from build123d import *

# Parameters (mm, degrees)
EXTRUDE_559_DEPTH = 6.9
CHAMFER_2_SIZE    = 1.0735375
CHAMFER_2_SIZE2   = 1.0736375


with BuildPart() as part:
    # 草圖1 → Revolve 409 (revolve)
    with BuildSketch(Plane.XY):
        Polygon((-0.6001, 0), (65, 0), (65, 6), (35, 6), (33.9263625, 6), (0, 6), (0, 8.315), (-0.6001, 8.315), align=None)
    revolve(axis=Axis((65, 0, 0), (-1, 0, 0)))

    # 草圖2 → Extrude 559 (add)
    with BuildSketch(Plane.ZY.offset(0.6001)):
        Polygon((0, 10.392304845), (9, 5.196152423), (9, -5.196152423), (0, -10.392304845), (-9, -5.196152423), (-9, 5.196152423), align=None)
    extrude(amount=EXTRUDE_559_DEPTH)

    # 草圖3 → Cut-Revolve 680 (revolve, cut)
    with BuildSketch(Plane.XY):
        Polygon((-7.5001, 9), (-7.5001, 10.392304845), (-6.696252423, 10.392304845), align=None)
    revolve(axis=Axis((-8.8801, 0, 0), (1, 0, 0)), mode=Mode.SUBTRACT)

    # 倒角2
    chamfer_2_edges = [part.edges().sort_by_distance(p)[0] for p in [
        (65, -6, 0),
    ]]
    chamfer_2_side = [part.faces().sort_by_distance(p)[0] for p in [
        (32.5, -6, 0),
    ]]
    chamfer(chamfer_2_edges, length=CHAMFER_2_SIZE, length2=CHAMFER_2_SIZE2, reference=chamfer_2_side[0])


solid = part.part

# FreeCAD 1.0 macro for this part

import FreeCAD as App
import Part
import Sketcher
Q = App.Units.Quantity


def edges_at(feature, points):
    """Names of the edges that pass closest to the given points."""
    edges = feature.Shape.Edges
    near = lambda p: min(range(len(edges)), key=lambda i: edges[i].distToShape(Part.Vertex(*p))[0])
    return sorted({f"Edge{near(p) + 1}" for p in points})

doc = App.newDocument("Part")
body = doc.addObject("PartDesign::Body", "Body")

sketch1 = doc.addObject("Sketcher::SketchObject", "Sketch")
body.addObject(sketch1)
sketch1.AttachmentSupport = (doc.XY_Plane, [""])
sketch1.MapMode = "FlatFace"
sketch1.addGeometry([
    Part.LineSegment(App.Vector(-0.6001, 0, 0), App.Vector(65, 0, 0)),
    Part.LineSegment(App.Vector(65, 0, 0), App.Vector(65, 6, 0)),
    Part.LineSegment(App.Vector(65, 6, 0), App.Vector(0, 6, 0)),
    Part.LineSegment(App.Vector(0, 6, 0), App.Vector(0, 8.315, 0)),
    Part.LineSegment(App.Vector(0, 8.315, 0), App.Vector(-0.6001, 8.315, 0)),
    Part.LineSegment(App.Vector(-0.6001, 8.315, 0), App.Vector(-0.6001, 0, 0)),
], False)
sketch1.addConstraint([
    Sketcher.Constraint("Coincident", 0, 2, 1, 1),
    Sketcher.Constraint("Coincident", 1, 2, 2, 1),
    Sketcher.Constraint("Coincident", 2, 2, 3, 1),
    Sketcher.Constraint("Coincident", 3, 2, 4, 1),
    Sketcher.Constraint("Coincident", 4, 2, 5, 1),
    Sketcher.Constraint("Coincident", 5, 2, 0, 1),
    Sketcher.Constraint("Horizontal", 0),
    Sketcher.Constraint("Vertical", 1),
    Sketcher.Constraint("Horizontal", 2),
    Sketcher.Constraint("Vertical", 3),
    Sketcher.Constraint("Horizontal", 4),
    Sketcher.Constraint("Vertical", 5),
    Sketcher.Constraint("PointOnObject", 0, 2, -1),
    Sketcher.Constraint("PointOnObject", 2, 2, -2),
    Sketcher.Constraint("DistanceX", 2, 2, 2, 1, Q("65 mm")),
    Sketcher.Constraint("DistanceY", 1, 1, 1, 2, Q("6 mm")),
    Sketcher.Constraint("DistanceY", 3, 1, 3, 2, Q("2.315 mm")),
    Sketcher.Constraint("DistanceX", 0, 1, 0, 2, Q("65.6001 mm")),
])
revolution = doc.addObject("PartDesign::Revolution", "Revolution")
body.addObject(revolution)
revolution.Profile = sketch1
revolution.ReferenceAxis = (sketch1, ["H_Axis"])
revolution.Angle = 360

sketch2 = doc.addObject("Sketcher::SketchObject", "Sketch001")
body.addObject(sketch2)
sketch2.AttachmentSupport = (doc.YZ_Plane, [""])
sketch2.MapMode = "FlatFace"
sketch2.AttachmentOffset = App.Placement(App.Vector(0, 0, -0.6001), App.Rotation())
sketch2.addGeometry([
    Part.LineSegment(App.Vector(5.196152, 9, 0), App.Vector(10.392305, 0, 0)),
    Part.LineSegment(App.Vector(10.392305, 0, 0), App.Vector(5.196152, -9, 0)),
    Part.LineSegment(App.Vector(5.196152, -9, 0), App.Vector(-5.196152, -9, 0)),
    Part.LineSegment(App.Vector(-5.196152, -9, 0), App.Vector(-10.392305, 0, 0)),
    Part.LineSegment(App.Vector(-10.392305, 0, 0), App.Vector(-5.196152, 9, 0)),
    Part.LineSegment(App.Vector(-5.196152, 9, 0), App.Vector(5.196152, 9, 0)),
], False)
sketch2.addConstraint([
    Sketcher.Constraint("Coincident", 0, 2, 1, 1),
    Sketcher.Constraint("Coincident", 1, 2, 2, 1),
    Sketcher.Constraint("Coincident", 2, 2, 3, 1),
    Sketcher.Constraint("Coincident", 3, 2, 4, 1),
    Sketcher.Constraint("Coincident", 4, 2, 5, 1),
    Sketcher.Constraint("Coincident", 5, 2, 0, 1),
    Sketcher.Constraint("Horizontal", 2),
    Sketcher.Constraint("Horizontal", 5),
    Sketcher.Constraint("Symmetric", 0, 2, 3, 2, -1, 1),
    Sketcher.Constraint("Symmetric", 1, 2, 4, 2, -1, 1),
    Sketcher.Constraint("PointOnObject", 0, 2, -1),
    Sketcher.Constraint("Parallel", 0, 3),
    Sketcher.Constraint("Vertical", 2, 2, 4, 2),
    Sketcher.Constraint("Angle", 0, Q("-60 deg")),
    Sketcher.Constraint("DistanceY", 1, 2, -1, 1, Q("9 mm")),
    Sketcher.Constraint("DistanceX", 2, 2, 2, 1, Q("10.392305 mm")),
])
pad1 = doc.addObject("PartDesign::Pad", "Pad")
body.addObject(pad1)
pad1.Profile = sketch2
pad1.Length = 6.9
pad1.Reversed = True

sketch3 = doc.addObject("Sketcher::SketchObject", "Sketch002")
body.addObject(sketch3)
sketch3.AttachmentSupport = (doc.XY_Plane, [""])
sketch3.MapMode = "FlatFace"
sketch3.addGeometry([
    Part.LineSegment(App.Vector(-7.5001, 10.392305, 0), App.Vector(-7.5001, 9, 0)),
    Part.LineSegment(App.Vector(-7.5001, 9, 0), App.Vector(-6.696252, 10.392305, 0)),
    Part.LineSegment(App.Vector(-6.696252, 10.392305, 0), App.Vector(-7.5001, 10.392305, 0)),
], False)
sketch3.addConstraint([
    Sketcher.Constraint("Coincident", 0, 2, 1, 1),
    Sketcher.Constraint("Coincident", 1, 2, 2, 1),
    Sketcher.Constraint("Coincident", 2, 2, 0, 1),
    Sketcher.Constraint("Vertical", 0),
    Sketcher.Constraint("Horizontal", 2),
    Sketcher.Constraint("Angle", 1, Q("60 deg")),
    Sketcher.Constraint("DistanceY", -1, 1, 0, 2, Q("9 mm")),
    Sketcher.Constraint("DistanceX", 0, 2, -1, 1, Q("7.5001 mm")),
    Sketcher.Constraint("DistanceX", 2, 2, 2, 1, Q("0.803848 mm")),
])
groove = doc.addObject("PartDesign::Groove", "Groove")
body.addObject(groove)
groove.Profile = sketch3
groove.ReferenceAxis = (sketch3, ["H_Axis"])
groove.Angle = 360
doc.recompute()

chamfer = doc.addObject("PartDesign::Chamfer", "Chamfer")
body.addObject(chamfer)
chamfer.Base = (groove, edges_at(groove, [(65, -6, 0)]))
chamfer.ChamferType = "Two distances"
chamfer.Size = 1.073538
chamfer.Size2 = 1.073638

doc.recompute()
